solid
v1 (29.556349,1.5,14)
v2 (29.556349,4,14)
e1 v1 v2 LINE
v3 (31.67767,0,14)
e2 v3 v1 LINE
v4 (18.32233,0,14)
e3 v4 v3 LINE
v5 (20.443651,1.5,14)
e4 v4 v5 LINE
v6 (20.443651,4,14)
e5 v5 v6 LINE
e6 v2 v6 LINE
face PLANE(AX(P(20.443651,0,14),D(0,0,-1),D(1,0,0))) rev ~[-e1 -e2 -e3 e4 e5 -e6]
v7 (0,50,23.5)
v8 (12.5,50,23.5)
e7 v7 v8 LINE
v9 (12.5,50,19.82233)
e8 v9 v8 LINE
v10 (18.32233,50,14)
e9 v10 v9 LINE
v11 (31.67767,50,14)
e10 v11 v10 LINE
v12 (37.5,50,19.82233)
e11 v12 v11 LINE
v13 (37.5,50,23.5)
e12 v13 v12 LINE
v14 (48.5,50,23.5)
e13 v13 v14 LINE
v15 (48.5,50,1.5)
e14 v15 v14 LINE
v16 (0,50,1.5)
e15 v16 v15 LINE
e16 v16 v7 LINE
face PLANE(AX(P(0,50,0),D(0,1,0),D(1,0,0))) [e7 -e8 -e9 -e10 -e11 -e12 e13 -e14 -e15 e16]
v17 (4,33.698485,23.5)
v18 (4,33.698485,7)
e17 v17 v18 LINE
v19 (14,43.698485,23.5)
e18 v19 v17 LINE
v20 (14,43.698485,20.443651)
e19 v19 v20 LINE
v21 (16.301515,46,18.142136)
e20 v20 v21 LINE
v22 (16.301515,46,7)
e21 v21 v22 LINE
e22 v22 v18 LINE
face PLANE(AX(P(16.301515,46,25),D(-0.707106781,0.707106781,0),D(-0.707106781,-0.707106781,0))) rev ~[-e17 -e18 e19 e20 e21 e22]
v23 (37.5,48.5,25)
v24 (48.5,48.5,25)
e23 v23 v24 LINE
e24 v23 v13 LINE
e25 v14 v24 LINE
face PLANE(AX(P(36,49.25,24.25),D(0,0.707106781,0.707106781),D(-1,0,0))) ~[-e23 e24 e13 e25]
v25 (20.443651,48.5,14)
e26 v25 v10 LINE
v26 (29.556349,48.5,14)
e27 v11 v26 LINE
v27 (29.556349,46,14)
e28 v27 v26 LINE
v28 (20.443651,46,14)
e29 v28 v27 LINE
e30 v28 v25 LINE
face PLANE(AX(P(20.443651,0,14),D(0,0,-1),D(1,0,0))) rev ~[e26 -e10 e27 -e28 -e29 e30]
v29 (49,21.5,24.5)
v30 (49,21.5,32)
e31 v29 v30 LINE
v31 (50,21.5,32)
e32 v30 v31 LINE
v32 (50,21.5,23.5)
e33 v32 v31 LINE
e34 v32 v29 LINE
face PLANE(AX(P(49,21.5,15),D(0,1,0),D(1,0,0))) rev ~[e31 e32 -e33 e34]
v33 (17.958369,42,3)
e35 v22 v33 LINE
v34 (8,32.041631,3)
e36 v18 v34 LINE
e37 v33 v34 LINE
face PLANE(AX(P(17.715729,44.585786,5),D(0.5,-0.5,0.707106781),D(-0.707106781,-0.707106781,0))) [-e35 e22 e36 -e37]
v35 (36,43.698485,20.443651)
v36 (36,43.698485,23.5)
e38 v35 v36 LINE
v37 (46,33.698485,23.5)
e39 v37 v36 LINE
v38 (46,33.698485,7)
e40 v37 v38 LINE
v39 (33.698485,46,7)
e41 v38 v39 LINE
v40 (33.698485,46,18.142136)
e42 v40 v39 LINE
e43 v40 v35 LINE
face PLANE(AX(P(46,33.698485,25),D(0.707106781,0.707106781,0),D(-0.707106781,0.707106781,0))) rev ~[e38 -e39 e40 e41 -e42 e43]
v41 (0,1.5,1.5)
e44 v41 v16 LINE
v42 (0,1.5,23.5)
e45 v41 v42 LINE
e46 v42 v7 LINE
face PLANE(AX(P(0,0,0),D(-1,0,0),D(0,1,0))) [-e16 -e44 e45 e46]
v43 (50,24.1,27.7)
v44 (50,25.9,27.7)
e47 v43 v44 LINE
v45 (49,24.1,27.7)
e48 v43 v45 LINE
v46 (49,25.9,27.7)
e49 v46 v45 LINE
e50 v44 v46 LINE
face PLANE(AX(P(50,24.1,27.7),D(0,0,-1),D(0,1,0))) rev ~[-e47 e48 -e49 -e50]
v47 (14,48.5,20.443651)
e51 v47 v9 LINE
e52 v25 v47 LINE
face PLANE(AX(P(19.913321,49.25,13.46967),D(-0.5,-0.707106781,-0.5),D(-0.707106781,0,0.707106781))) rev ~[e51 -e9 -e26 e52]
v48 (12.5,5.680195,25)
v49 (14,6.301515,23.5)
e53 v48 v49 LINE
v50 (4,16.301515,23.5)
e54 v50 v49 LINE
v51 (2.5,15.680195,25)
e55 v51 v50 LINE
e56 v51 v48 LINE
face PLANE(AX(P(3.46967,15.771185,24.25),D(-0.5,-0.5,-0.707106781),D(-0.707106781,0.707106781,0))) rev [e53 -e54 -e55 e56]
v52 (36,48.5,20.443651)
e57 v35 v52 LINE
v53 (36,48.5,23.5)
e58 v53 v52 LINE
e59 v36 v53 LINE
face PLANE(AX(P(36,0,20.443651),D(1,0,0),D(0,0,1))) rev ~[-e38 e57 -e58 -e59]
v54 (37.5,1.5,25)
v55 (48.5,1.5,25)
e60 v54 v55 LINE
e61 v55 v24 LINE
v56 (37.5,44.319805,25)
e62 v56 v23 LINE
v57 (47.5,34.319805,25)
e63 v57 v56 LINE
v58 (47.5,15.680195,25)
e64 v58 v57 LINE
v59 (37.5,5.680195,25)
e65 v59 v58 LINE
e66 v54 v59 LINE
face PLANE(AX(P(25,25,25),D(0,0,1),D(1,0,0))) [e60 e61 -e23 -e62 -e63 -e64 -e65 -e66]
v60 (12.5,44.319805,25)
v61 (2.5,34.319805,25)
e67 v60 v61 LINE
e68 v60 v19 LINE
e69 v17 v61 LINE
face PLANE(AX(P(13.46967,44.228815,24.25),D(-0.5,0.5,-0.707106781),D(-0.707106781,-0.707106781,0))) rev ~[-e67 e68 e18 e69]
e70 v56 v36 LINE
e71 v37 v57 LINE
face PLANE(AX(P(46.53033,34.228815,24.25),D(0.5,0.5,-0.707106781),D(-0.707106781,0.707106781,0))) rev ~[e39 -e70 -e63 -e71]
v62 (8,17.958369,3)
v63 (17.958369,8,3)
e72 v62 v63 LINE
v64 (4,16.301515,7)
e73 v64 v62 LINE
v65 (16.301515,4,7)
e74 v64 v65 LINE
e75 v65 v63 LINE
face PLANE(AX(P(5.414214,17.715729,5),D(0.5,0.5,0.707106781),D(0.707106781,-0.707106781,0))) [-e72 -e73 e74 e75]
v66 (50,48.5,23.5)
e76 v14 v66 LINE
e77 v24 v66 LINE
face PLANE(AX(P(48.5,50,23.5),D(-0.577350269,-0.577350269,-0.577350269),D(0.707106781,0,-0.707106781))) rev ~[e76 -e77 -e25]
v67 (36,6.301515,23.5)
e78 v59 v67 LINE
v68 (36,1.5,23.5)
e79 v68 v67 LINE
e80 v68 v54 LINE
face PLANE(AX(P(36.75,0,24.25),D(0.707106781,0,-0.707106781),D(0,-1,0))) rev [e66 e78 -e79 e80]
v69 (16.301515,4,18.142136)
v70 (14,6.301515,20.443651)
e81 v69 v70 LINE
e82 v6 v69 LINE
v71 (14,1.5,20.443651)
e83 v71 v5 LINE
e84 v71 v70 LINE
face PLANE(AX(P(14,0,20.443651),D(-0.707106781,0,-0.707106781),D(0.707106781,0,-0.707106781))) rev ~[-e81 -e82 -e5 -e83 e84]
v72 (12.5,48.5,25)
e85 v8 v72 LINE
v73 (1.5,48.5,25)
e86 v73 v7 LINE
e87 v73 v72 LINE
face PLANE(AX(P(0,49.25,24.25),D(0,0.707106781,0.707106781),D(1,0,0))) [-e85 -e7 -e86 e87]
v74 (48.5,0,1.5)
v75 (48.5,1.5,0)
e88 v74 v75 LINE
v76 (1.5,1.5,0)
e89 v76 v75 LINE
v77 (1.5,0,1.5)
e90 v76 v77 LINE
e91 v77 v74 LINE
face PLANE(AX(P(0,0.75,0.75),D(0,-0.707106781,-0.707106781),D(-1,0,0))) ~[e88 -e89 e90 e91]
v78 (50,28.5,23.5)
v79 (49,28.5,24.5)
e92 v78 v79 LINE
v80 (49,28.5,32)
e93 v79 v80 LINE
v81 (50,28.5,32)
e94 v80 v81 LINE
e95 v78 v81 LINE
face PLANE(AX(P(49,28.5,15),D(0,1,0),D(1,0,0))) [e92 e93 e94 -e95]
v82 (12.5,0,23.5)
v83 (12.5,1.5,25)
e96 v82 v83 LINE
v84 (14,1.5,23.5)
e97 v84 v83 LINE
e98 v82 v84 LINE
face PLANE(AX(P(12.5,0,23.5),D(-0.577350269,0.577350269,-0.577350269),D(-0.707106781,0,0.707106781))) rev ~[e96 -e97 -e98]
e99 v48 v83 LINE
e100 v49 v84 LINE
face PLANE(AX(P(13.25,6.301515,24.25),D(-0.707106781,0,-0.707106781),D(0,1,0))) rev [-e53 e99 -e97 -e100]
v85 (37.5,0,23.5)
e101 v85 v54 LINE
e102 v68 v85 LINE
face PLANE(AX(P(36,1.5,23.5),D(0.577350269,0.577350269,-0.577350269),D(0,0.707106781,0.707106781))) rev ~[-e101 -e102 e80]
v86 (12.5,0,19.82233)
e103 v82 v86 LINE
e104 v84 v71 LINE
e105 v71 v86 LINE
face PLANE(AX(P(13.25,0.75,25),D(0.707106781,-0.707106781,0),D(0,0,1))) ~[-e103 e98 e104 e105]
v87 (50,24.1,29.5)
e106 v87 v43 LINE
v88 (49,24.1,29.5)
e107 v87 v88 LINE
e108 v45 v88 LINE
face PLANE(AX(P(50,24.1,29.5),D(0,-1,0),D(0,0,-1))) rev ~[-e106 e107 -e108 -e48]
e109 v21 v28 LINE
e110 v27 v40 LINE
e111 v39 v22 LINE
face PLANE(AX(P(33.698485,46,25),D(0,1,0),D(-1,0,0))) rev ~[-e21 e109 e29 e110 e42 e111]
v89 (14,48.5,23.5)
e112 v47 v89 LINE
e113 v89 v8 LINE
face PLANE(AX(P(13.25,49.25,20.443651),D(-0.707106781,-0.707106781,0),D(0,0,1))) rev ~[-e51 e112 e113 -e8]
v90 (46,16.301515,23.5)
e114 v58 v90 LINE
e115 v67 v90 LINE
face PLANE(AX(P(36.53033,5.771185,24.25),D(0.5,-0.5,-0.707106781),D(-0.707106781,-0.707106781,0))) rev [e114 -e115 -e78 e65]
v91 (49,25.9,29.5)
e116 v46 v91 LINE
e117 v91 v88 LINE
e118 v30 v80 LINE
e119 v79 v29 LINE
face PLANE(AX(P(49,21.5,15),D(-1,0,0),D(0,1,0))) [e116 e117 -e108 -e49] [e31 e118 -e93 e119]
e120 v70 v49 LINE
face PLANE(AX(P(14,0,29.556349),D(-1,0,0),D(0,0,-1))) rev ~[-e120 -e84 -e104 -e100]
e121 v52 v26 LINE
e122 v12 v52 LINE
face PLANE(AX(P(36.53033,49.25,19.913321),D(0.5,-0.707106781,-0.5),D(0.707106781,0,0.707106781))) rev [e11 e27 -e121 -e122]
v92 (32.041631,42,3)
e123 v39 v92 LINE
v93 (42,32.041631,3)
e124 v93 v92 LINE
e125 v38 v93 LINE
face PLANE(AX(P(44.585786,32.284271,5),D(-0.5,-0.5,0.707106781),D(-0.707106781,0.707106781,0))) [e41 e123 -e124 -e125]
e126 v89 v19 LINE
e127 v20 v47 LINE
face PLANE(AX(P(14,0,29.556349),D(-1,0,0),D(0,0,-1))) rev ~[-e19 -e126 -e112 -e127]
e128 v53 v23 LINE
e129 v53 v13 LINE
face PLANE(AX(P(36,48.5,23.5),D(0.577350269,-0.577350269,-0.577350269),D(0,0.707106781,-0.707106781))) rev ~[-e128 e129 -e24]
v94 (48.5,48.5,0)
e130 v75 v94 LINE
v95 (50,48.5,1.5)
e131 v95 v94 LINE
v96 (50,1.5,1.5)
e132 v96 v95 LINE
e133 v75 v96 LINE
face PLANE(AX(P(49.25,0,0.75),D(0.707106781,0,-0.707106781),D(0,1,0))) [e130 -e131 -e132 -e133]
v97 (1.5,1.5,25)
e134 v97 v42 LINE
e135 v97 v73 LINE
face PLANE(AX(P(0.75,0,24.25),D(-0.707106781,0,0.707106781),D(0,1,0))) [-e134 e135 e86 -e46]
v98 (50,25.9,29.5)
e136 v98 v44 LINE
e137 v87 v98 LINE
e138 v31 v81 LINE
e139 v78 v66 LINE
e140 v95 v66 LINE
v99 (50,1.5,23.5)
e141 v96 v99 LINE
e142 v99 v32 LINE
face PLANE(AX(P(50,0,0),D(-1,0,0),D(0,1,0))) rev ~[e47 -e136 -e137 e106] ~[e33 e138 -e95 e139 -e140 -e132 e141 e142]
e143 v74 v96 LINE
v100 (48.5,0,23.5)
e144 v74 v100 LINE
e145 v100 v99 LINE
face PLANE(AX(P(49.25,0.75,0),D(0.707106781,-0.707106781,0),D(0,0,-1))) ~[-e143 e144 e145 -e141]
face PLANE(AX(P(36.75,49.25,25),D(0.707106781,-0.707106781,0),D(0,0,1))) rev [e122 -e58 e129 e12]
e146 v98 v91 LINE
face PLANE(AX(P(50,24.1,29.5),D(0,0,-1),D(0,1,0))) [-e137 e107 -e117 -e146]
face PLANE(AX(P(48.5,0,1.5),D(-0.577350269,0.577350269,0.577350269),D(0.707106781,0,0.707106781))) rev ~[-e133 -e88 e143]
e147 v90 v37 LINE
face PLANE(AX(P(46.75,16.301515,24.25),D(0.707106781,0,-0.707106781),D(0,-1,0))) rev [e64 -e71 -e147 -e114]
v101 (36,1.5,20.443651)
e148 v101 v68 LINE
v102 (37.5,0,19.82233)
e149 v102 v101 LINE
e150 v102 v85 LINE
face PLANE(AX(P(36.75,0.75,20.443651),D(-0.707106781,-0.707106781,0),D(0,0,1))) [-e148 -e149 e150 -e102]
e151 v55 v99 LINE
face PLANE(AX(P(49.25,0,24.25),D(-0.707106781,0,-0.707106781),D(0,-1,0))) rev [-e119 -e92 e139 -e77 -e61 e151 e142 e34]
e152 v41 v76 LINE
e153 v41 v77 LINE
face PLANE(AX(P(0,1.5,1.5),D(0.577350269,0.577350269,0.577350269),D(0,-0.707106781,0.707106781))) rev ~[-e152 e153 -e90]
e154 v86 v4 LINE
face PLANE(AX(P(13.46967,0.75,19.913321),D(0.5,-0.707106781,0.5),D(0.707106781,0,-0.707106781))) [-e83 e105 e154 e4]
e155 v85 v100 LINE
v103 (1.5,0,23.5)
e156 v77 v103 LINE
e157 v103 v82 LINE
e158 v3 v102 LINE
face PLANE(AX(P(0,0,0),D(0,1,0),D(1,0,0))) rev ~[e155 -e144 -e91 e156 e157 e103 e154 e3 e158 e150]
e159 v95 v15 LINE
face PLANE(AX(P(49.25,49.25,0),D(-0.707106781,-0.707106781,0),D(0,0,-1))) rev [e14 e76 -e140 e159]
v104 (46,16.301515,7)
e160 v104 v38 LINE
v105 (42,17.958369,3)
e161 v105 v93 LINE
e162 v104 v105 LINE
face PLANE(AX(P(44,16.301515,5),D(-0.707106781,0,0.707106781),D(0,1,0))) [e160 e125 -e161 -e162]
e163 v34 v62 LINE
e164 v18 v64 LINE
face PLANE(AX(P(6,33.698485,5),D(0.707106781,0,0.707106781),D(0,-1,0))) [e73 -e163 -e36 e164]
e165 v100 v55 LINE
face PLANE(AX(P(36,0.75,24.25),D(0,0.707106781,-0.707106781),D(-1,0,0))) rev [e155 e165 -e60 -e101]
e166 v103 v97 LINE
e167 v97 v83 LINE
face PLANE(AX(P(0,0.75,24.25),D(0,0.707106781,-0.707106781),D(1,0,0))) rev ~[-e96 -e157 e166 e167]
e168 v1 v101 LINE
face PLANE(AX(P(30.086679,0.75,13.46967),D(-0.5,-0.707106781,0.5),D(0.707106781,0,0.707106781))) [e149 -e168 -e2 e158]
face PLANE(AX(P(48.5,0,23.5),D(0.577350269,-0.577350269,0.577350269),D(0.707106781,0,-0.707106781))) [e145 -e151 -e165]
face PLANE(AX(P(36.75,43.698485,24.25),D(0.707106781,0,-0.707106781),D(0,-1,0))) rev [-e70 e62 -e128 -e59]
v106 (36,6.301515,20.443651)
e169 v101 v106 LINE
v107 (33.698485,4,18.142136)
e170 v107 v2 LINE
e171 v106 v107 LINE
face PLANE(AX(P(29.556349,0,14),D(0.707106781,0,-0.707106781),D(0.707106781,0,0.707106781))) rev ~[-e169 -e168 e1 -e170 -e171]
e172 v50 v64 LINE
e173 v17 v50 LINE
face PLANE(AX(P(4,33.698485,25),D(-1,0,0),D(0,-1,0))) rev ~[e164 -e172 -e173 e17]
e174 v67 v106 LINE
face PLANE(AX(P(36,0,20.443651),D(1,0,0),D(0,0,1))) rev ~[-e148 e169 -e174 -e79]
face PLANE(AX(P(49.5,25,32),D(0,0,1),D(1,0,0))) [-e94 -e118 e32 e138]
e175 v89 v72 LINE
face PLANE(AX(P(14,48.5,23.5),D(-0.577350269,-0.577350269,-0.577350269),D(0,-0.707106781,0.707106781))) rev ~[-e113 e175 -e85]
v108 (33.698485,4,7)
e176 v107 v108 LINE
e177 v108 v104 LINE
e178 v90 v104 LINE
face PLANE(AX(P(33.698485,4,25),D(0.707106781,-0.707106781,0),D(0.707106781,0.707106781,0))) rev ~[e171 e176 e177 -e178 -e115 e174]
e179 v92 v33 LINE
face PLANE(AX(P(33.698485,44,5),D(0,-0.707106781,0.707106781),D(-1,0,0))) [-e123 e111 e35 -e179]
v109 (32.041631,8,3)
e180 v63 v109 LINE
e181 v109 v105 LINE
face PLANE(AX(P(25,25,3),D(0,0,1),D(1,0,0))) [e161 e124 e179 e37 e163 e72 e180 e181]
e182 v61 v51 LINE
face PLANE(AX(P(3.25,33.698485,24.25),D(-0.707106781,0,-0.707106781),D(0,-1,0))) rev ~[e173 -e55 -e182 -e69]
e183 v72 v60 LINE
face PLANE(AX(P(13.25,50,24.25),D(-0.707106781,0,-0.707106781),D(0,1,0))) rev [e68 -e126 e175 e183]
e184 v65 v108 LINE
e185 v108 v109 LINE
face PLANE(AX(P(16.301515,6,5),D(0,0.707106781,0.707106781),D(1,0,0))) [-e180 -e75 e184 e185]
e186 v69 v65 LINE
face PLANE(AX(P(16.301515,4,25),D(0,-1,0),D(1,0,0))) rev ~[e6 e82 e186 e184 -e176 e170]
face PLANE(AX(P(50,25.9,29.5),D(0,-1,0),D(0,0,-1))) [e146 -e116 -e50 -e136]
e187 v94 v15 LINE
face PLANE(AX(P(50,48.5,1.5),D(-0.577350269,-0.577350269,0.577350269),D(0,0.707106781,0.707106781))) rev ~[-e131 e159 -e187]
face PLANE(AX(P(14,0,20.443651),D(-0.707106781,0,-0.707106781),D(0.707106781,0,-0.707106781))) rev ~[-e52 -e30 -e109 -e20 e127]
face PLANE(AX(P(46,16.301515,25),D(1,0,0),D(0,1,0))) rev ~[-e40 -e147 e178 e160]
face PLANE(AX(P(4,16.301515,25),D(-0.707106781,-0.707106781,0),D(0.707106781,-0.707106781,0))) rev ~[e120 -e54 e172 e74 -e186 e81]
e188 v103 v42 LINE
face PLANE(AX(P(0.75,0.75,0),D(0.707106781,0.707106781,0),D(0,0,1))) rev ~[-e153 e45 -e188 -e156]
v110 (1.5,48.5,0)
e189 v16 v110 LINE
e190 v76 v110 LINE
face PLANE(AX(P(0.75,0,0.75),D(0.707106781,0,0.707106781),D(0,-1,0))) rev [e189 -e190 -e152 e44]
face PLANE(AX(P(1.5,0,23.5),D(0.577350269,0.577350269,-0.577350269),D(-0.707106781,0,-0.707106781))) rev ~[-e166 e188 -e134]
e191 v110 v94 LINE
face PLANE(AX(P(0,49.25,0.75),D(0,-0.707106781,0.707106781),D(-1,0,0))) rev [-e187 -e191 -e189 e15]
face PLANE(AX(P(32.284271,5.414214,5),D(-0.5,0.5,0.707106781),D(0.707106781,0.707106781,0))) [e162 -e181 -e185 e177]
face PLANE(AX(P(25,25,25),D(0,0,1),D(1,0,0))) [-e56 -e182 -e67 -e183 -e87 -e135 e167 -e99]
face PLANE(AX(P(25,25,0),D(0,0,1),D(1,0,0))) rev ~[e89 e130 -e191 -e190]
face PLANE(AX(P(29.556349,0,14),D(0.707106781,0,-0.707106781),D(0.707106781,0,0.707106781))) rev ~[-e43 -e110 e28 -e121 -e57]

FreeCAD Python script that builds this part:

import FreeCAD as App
import Part
import Sketcher
Q = App.Units.Quantity


def edges_at(feature, points):
    """Names of the edges that pass closest to the given points."""
    edges = feature.Shape.Edges
    near = lambda p: min(range(len(edges)), key=lambda i: edges[i].distToShape(Part.Vertex(*p))[0])
    return sorted({f"Edge{near(p) + 1}" for p in points})


def add_polygon(sketch, points):
    """Adds a closed chain of lines whose ends are joined by coincident constraints."""
    first, n = sketch.GeometryCount, len(points)
    for a, b in zip(points, points[1:] + points[:1]):
        sketch.addGeometry(Part.LineSegment(App.Vector(*a, 0), App.Vector(*b, 0)), False)
    for i in range(n):
        sketch.addConstraint(Sketcher.Constraint("Coincident", first + i, 2, first + (i + 1) % n, 1))

doc = App.newDocument("Part")
body = doc.addObject("PartDesign::Body", "Body")

# Sketch on XY plane
sketch1 = doc.addObject("Sketcher::SketchObject", "Sketch")
body.addObject(sketch1)
sketch1.AttachmentSupport = (doc.XY_Plane, [""])
sketch1.MapMode = "FlatFace"
add_polygon(sketch1, [(0, 50), (0, 0), (50, 0), (50, 50)])  # lines 0-3
sketch1.addConstraint(Sketcher.Constraint("Vertical", 0))
sketch1.addConstraint(Sketcher.Constraint("Horizontal", 1))
sketch1.addConstraint(Sketcher.Constraint("Vertical", 2))
sketch1.addConstraint(Sketcher.Constraint("Horizontal", 3))
sketch1.addConstraint(Sketcher.Constraint("Coincident", 0, 2, -1, 1))
sketch1.addConstraint(Sketcher.Constraint("Equal", 3, 0))
sketch1.addConstraint(Sketcher.Constraint("DistanceX", 1, 1, 1, 2, Q("50 mm")))
pad1 = doc.addObject("PartDesign::Pad", "Pad")
body.addObject(pad1)
pad1.Profile = sketch1
pad1.Length = 25

# Sketch on XZ plane
sketch2 = doc.addObject("Sketcher::SketchObject", "Sketch001")
body.addObject(sketch2)
sketch2.AttachmentSupport = (doc.XZ_Plane, [""])
sketch2.MapMode = "FlatFace"
add_polygon(sketch2, [(36, 29.556349), (29.556349, 36), (20.443651, 36), (14, 29.556349), (14, 20.443651), (20.443651, 14), (29.556349, 14), (36, 20.443651)])  # lines 0-7
sketch2.addConstraint(Sketcher.Constraint("Horizontal", 1))
sketch2.addConstraint(Sketcher.Constraint("Vertical", 3))
sketch2.addConstraint(Sketcher.Constraint("Horizontal", 5))
sketch2.addConstraint(Sketcher.Constraint("Vertical", 7))
sketch2.addConstraint(Sketcher.Constraint("Perpendicular", 0, 2))
sketch2.addConstraint(Sketcher.Constraint("Perpendicular", 2, 4))
sketch2.addConstraint(Sketcher.Constraint("Perpendicular", 4, 6))
sketch2.addConstraint(Sketcher.Constraint("Horizontal", 3, 2, 6, 2))
sketch2.addConstraint(Sketcher.Constraint("Horizontal", 2, 2, 7, 2))
sketch2.addConstraint(Sketcher.Constraint("Vertical", 1, 2, 4, 2))
sketch2.addConstraint(Sketcher.Constraint("Vertical", 0, 2, 5, 2))
sketch2.addConstraint(Sketcher.Constraint("Equal", 5, 3))
sketch2.addConstraint(Sketcher.Constraint("DistanceY", -1, 1, 0, 2, Q("36 mm")))
sketch2.addConstraint(Sketcher.Constraint("DistanceX", -1, 1, 2, 2, Q("14 mm")))
sketch2.addConstraint(Sketcher.Constraint("DistanceY", -1, 1, 4, 2, Q("14 mm")))
sketch2.addConstraint(Sketcher.Constraint("DistanceX", 1, 2, 1, 1, Q("9.112698 mm")))
pocket1 = doc.addObject("PartDesign::Pocket", "Pocket")
body.addObject(pocket1)
pocket1.Profile = sketch2
pocket1.Type = "ThroughAll"

# Sketch on XY plane
sketch3 = doc.addObject("Sketcher::SketchObject", "Sketch002")
body.addObject(sketch3)
sketch3.AttachmentSupport = (doc.XY_Plane, [""])
sketch3.MapMode = "FlatFace"
sketch3.AttachmentOffset = App.Placement(App.Vector(0, 0, 25), App.Rotation())
add_polygon(sketch3, [(4, 33.698485), (4, 16.301515), (16.301515, 4), (33.698485, 4), (46, 16.301515), (46, 33.698485), (33.698485, 46), (16.301515, 46)])  # lines 0-7
sketch3.addConstraint(Sketcher.Constraint("Vertical", 0))
sketch3.addConstraint(Sketcher.Constraint("Horizontal", 2))
sketch3.addConstraint(Sketcher.Constraint("Vertical", 4))
sketch3.addConstraint(Sketcher.Constraint("Horizontal", 6))
sketch3.addConstraint(Sketcher.Constraint("Perpendicular", 1, 3))
sketch3.addConstraint(Sketcher.Constraint("Perpendicular", 3, 5))
sketch3.addConstraint(Sketcher.Constraint("Perpendicular", 5, 7))
sketch3.addConstraint(Sketcher.Constraint("Horizontal", 0, 2, 3, 2))
sketch3.addConstraint(Sketcher.Constraint("Horizontal", 4, 2, 7, 2))
sketch3.addConstraint(Sketcher.Constraint("Vertical", 2, 2, 5, 2))
sketch3.addConstraint(Sketcher.Constraint("Vertical", 1, 2, 6, 2))
sketch3.addConstraint(Sketcher.Constraint("Equal", 6, 0))
sketch3.addConstraint(Sketcher.Constraint("DistanceX", -1, 1, 0, 2, Q("4 mm")))
sketch3.addConstraint(Sketcher.Constraint("DistanceY", -1, 1, 1, 2, Q("4 mm")))
sketch3.addConstraint(Sketcher.Constraint("DistanceX", -1, 1, 3, 2, Q("46 mm")))
sketch3.addConstraint(Sketcher.Constraint("DistanceX", 2, 1, 2, 2, Q("17.39697 mm")))
pocket2 = doc.addObject("PartDesign::Pocket", "Pocket001")
body.addObject(pocket2)
pocket2.Profile = sketch3
pocket2.Length = 22
doc.recompute()

chamfer = doc.addObject("PartDesign::Chamfer", "Chamfer")
body.addObject(chamfer)
chamfer.Base = (pocket2, edges_at(pocket2, [
    (39.849, 39.849, 3),
    (39.849, 10.151, 3),
    (10.151, 39.849, 3),
    (25, 46, 3),
    (25, 4, 3),
    (10.151, 10.151, 3),
    (46, 25, 3),
    (4, 25, 3),
]))
chamfer.Size = 4
doc.recompute()

chamfer2 = doc.addObject("PartDesign::Chamfer", "Chamfer001")
body.addObject(chamfer2)
chamfer2.Base = (chamfer, edges_at(chamfer, [
    (50, 25, 25),
    (43, 50, 25),
    (43, 0, 25),
    (7, 50, 25),
    (14, 3.151, 25),
    (36, 46.849, 25),
    (36, 50, 22.722),
    (14, 50, 22.722),
    (36, 0, 22.722),
    (14, 0, 22.722),
    (17.222, 0, 17.222),
    (32.778, 0, 17.222),
    (32.778, 50, 17.222),
    (17.222, 50, 17.222),
    (0, 25, 25),
    (25, 50, 0),
    (50, 25, 0),
    (14, 46.849, 25),
    (36, 3.151, 25),
    (25, 0, 0),
    (41, 38.698, 25),
    (41, 11.302, 25),
    (46, 25, 25),
    (9, 11.302, 25),
    (9, 38.698, 25),
    (4, 25, 25),
    (0, 25, 0),
    (7, 0, 25),
    (50, 50, 12.5),
    (50, 0, 12.5),
    (0, 0, 12.5),
]))
chamfer2.Size = 1.5

# Sketch on XY plane
sketch4 = doc.addObject("Sketcher::SketchObject", "Sketch003")
body.addObject(sketch4)
sketch4.AttachmentSupport = (doc.XY_Plane, [""])
sketch4.MapMode = "FlatFace"
sketch4.AttachmentOffset = App.Placement(App.Vector(0, 0, 25), App.Rotation())
add_polygon(sketch4, [(49, 28.5), (49, 21.5), (50, 21.5), (50, 28.5)])  # lines 0-3
sketch4.addConstraint(Sketcher.Constraint("Vertical", 0))
sketch4.addConstraint(Sketcher.Constraint("Horizontal", 1))
sketch4.addConstraint(Sketcher.Constraint("Vertical", 2))
sketch4.addConstraint(Sketcher.Constraint("Horizontal", 3))
sketch4.addConstraint(Sketcher.Constraint("DistanceX", 1, 1, 1, 2, Q("1 mm")))
sketch4.addConstraint(Sketcher.Constraint("DistanceY", 0, 2, 0, 1, Q("7 mm")))
sketch4.addConstraint(Sketcher.Constraint("DistanceX", -1, 1, 0, 2, Q("49 mm")))
sketch4.addConstraint(Sketcher.Constraint("DistanceY", -1, 1, 0, 2, Q("21.5 mm")))
pad2 = doc.addObject("PartDesign::Pad", "Pad001")
body.addObject(pad2)
pad2.Profile = sketch4
pad2.Type = "TwoLengths"
pad2.Length = 7
pad2.Length2 = 10

# Sketch on YZ plane
sketch5 = doc.addObject("Sketcher::SketchObject", "Sketch004")
body.addObject(sketch5)
sketch5.AttachmentSupport = (doc.YZ_Plane, [""])
sketch5.MapMode = "FlatFace"
sketch5.AttachmentOffset = App.Placement(App.Vector(0, 0, 50), App.Rotation())
add_polygon(sketch5, [(25.9, 29.5), (24.1, 29.5), (24.1, 27.7), (25.9, 27.7)])  # lines 0-3
sketch5.addConstraint(Sketcher.Constraint("Horizontal", 0))
sketch5.addConstraint(Sketcher.Constraint("Vertical", 1))
sketch5.addConstraint(Sketcher.Constraint("Horizontal", 2))
sketch5.addConstraint(Sketcher.Constraint("Vertical", 3))
sketch5.addConstraint(Sketcher.Constraint("Equal", 2, 1))
sketch5.addConstraint(Sketcher.Constraint("DistanceX", 0, 2, 0, 1, Q("1.8 mm")))
sketch5.addConstraint(Sketcher.Constraint("DistanceX", -1, 1, 0, 2, Q("24.1 mm")))
sketch5.addConstraint(Sketcher.Constraint("DistanceY", -1, 1, 0, 2, Q("29.5 mm")))
pocket3 = doc.addObject("PartDesign::Pocket", "Pocket002")
body.addObject(pocket3)
pocket3.Profile = sketch5
pocket3.Type = "ThroughAll"

doc.recompute()
